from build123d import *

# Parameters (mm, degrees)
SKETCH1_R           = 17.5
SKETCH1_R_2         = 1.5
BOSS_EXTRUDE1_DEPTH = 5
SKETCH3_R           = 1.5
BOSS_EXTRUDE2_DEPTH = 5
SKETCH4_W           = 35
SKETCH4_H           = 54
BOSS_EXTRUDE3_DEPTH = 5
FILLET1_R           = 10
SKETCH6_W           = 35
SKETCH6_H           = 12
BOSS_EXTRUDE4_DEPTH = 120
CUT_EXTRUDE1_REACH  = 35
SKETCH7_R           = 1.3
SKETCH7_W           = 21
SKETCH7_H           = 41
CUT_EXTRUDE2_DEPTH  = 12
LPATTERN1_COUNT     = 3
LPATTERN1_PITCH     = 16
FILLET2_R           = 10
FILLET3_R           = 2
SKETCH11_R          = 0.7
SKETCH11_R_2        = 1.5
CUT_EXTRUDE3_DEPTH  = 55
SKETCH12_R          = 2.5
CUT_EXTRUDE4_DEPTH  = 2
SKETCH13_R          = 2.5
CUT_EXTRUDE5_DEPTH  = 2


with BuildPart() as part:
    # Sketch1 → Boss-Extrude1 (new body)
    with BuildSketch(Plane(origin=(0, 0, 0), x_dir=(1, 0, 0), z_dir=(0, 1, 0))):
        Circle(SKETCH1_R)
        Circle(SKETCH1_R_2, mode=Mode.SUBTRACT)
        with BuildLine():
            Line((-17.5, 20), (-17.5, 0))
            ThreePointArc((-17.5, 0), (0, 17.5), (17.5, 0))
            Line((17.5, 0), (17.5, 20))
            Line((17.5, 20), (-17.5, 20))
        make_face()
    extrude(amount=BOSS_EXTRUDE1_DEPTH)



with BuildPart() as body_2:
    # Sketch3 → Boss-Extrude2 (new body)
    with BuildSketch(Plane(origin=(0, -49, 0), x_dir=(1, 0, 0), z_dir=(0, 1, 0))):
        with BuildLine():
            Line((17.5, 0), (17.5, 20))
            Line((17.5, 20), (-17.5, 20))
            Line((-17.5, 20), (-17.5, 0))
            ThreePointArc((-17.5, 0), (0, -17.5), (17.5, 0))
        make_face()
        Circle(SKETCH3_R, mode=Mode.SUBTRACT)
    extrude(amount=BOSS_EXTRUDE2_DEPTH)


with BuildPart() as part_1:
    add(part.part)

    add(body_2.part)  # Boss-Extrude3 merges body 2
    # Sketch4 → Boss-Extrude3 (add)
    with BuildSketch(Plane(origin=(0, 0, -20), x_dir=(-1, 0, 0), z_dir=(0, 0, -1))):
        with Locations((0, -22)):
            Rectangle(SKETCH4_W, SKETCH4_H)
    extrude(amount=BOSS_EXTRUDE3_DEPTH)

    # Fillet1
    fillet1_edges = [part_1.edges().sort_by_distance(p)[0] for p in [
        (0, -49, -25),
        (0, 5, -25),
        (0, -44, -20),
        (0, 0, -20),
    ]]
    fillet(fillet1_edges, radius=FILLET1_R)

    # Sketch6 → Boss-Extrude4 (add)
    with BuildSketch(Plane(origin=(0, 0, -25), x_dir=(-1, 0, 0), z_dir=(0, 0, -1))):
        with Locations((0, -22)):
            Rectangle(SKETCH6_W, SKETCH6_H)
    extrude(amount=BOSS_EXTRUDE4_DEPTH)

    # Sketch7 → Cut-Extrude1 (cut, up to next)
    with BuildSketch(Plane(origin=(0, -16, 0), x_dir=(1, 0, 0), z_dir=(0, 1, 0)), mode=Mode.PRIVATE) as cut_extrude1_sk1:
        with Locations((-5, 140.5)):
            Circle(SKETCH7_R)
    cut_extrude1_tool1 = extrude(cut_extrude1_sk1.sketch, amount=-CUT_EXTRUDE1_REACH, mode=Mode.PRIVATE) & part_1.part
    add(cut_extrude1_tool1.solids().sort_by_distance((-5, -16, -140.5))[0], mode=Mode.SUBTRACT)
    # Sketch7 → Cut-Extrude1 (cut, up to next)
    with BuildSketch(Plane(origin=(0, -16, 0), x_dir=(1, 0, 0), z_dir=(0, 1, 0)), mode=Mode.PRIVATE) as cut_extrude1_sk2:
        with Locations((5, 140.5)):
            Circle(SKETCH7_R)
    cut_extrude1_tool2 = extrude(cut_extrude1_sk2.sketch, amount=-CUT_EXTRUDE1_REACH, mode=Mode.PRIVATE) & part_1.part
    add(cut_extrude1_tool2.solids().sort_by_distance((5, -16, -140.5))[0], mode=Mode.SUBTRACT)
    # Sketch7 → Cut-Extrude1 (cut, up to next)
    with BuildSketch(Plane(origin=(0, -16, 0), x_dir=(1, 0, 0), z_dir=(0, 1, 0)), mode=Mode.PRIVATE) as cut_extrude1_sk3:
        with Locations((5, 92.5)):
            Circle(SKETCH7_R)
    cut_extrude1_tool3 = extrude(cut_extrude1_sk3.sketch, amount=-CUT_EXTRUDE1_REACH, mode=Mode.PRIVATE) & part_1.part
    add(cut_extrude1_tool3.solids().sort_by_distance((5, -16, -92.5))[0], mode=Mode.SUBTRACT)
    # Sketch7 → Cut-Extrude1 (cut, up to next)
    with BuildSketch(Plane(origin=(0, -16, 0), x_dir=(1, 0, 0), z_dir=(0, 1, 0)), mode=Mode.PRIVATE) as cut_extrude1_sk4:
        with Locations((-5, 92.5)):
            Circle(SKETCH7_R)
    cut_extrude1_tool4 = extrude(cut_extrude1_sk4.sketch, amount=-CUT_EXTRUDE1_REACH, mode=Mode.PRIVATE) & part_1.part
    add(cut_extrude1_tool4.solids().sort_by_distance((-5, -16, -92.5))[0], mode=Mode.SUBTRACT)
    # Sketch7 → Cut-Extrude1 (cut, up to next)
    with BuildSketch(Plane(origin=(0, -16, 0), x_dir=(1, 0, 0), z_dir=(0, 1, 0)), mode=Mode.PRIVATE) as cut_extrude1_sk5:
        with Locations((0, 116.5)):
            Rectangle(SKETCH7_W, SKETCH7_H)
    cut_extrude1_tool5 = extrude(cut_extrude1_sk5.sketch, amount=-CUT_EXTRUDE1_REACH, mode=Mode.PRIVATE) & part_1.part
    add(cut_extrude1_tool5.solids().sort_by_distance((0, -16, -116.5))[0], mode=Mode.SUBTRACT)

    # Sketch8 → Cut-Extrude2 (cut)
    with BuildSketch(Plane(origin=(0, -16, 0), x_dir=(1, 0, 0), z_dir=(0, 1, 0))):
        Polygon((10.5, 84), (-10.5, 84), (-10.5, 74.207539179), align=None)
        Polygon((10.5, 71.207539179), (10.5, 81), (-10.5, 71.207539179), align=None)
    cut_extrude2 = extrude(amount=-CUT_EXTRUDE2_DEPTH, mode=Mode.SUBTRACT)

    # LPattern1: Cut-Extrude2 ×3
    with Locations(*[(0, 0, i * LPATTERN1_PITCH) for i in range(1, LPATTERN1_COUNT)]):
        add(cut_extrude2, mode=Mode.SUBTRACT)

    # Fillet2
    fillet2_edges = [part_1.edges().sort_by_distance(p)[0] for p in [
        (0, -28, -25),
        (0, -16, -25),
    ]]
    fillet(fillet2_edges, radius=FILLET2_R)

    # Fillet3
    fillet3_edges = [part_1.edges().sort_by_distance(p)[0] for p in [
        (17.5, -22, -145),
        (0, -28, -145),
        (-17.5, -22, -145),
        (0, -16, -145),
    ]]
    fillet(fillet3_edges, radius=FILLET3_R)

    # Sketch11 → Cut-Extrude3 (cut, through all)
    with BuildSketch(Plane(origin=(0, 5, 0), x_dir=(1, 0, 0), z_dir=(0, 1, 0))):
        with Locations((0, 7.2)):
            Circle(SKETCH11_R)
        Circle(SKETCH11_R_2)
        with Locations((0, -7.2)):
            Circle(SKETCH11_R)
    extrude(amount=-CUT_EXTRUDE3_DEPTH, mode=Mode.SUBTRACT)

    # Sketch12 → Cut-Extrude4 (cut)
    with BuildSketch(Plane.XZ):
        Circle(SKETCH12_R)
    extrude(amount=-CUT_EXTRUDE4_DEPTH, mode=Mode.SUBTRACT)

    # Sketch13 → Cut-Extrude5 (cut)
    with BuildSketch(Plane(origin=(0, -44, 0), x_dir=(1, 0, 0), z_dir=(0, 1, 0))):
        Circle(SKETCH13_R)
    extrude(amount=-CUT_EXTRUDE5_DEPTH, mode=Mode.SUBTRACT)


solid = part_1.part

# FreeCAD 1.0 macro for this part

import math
import FreeCAD as App
import Part
import Sketcher
from FreeCAD import Vector
Q = App.Units.Quantity


def edges_at(feature, points):
    """Names of the edges that pass closest to the given points."""
    edges = feature.Shape.Edges
    near = lambda p: min(range(len(edges)), key=lambda i: edges[i].distToShape(Part.Vertex(*p))[0])
    return sorted({f"Edge{near(p) + 1}" for p in points})

doc = App.newDocument("Part")
body = doc.addObject("PartDesign::Body", "Body")

# Sketch on XZ plane
sketch1 = body.newObject("Sketcher::SketchObject", "Sketch")
sketch1.AttachmentSupport = (doc.getObject("XZ_Plane"), [""])
sketch1.MapMode = "FlatFace"
sketch1.addGeometry([
    Part.ArcOfCircle(Part.Circle(Vector(0, 0, 0), Vector(0, 0, 1), 17.5), math.radians(0), math.radians(180)),  # 0
    Part.LineSegment(Vector(17.5, 0, 0), Vector(17.5, -20, 0)),  # 1
    Part.LineSegment(Vector(17.5, -20, 0), Vector(-17.5, -20, 0)),  # 2
    Part.LineSegment(Vector(-17.5, -20, 0), Vector(-17.5, 0, 0)),  # 3
    Part.Circle(Vector(0, 0, 0), Vector(0, 0, 1), 1.5),  # 4
], False)
sketch1.addConstraint([
    Sketcher.Constraint("Tangent", 0, 1, 1, 1),
    Sketcher.Constraint("Coincident", 1, 2, 2, 1),
    Sketcher.Constraint("Coincident", 2, 2, 3, 1),
    Sketcher.Constraint("Tangent", 3, 2, 0, 2),
    Sketcher.Constraint("Vertical", 1),
    Sketcher.Constraint("Horizontal", 2),
    Sketcher.Constraint("Vertical", 3),
    Sketcher.Constraint("Coincident", 0, 3, -1, 1),
    Sketcher.Constraint("Coincident", 4, 3, -1, 1),
    Sketcher.Constraint("Diameter", 4, 3.0),
    Sketcher.Constraint("Radius", 0, 17.5),
    Sketcher.Constraint("DistanceY", 1, 2, 1, 1, 20.0),
])
pad1 = body.newObject("PartDesign::Pad", "Pad")
pad1.Profile = sketch1
pad1.Length = 5
pad1.Reversed = True
body2 = doc.addObject("PartDesign::Body", "Body001")

# Sketch on XZ plane
sketch2 = body2.newObject("Sketcher::SketchObject", "Sketch001")
sketch2.AttachmentSupport = (doc.getObject("XZ_Plane001"), [""])
sketch2.MapMode = "FlatFace"
sketch2.AttachmentOffset = App.Placement(Vector(0, 0, 49), App.Rotation())
sketch2.addGeometry([
    Part.LineSegment(Vector(17.5, 0, 0), Vector(17.5, -20, 0)),  # 0
    Part.LineSegment(Vector(17.5, -20, 0), Vector(-17.5, -20, 0)),  # 1
    Part.LineSegment(Vector(-17.5, -20, 0), Vector(-17.5, 0, 0)),  # 2
    Part.ArcOfCircle(Part.Circle(Vector(0, 0, 0), Vector(0, 0, 1), 17.5), math.radians(0), math.radians(180)),  # 3
    Part.Circle(Vector(0, 0, 0), Vector(0, 0, 1), 1.5),  # 4
], False)
sketch2.addConstraint([
    Sketcher.Constraint("Coincident", 0, 2, 1, 1),
    Sketcher.Constraint("Coincident", 1, 2, 2, 1),
    Sketcher.Constraint("Tangent", 2, 2, 3, 2),
    Sketcher.Constraint("Tangent", 3, 1, 0, 1),
    Sketcher.Constraint("Vertical", 0),
    Sketcher.Constraint("Horizontal", 1),
    Sketcher.Constraint("Vertical", 2),
    Sketcher.Constraint("Coincident", 3, 3, -1, 1),
    Sketcher.Constraint("Coincident", 4, 3, -1, 1),
    Sketcher.Constraint("Diameter", 4, 3.0),
    Sketcher.Constraint("Radius", 3, 17.5),
    Sketcher.Constraint("DistanceY", 0, 2, 0, 1, 20.0),
])
pad2 = body2.newObject("PartDesign::Pad", "Pad001")
pad2.Profile = sketch2
pad2.Length = 5
pad2.Reversed = True
body.AllowCompound = True
doc.recompute()

boolean = body.newObject("PartDesign::Boolean", "Boolean")
boolean.Type = "Fuse"
boolean.addObjects([body2])

# Sketch on XY plane
sketch3 = body.newObject("Sketcher::SketchObject", "Sketch002")
sketch3.AttachmentSupport = (doc.getObject("XY_Plane"), [""])
sketch3.MapMode = "FlatFace"
sketch3.AttachmentOffset = App.Placement(Vector(0, 0, -20), App.Rotation())
sketch3.addGeometry([
    Part.LineSegment(Vector(18, 5, 0), Vector(18, -49, 0)),
    Part.LineSegment(Vector(18, -49, 0), Vector(-18, -49, 0)),
    Part.LineSegment(Vector(-18, -49, 0), Vector(-18, 5, 0)),
    Part.LineSegment(Vector(-18, 5, 0), Vector(18, 5, 0)),
], False)
sketch3.addConstraint([
    Sketcher.Constraint("Coincident", 0, 2, 1, 1),
    Sketcher.Constraint("Coincident", 1, 2, 2, 1),
    Sketcher.Constraint("Coincident", 2, 2, 3, 1),
    Sketcher.Constraint("Coincident", 3, 2, 0, 1),
    Sketcher.Constraint("Vertical", 0),
    Sketcher.Constraint("Horizontal", 1),
    Sketcher.Constraint("Vertical", 2),
    Sketcher.Constraint("Horizontal", 3),
    Sketcher.Constraint("DistanceX", 1, 2, 1, 1, 35.0),
    Sketcher.Constraint("DistanceY", 0, 2, 0, 1, 54.0),
    Sketcher.Constraint("DistanceY", 0, 2, -1, 1, 49.0),
    Sketcher.Constraint("DistanceX", -1, 1, 0, 2, 17.5),
])
pad3 = body.newObject("PartDesign::Pad", "Pad002")
pad3.Profile = sketch3
pad3.Length = 5
pad3.Reversed = True
doc.recompute()

fillet = body.newObject("PartDesign::Fillet", "Fillet")
fillet.Base = (pad3, edges_at(pad3, [
    (0, -49, -25),
    (0, 5, -25),
    (0, -44, -20),
    (0, 0, -20),
]))
fillet.Radius = 10

# Sketch on XY plane
sketch4 = body.newObject("Sketcher::SketchObject", "Sketch003")
sketch4.AttachmentSupport = (doc.getObject("XY_Plane"), [""])
sketch4.MapMode = "FlatFace"
sketch4.AttachmentOffset = App.Placement(Vector(0, 0, -25), App.Rotation())
sketch4.addGeometry([
    Part.LineSegment(Vector(18, -16, 0), Vector(18, -28, 0)),
    Part.LineSegment(Vector(18, -28, 0), Vector(-18, -28, 0)),
    Part.LineSegment(Vector(-18, -28, 0), Vector(-18, -16, 0)),
    Part.LineSegment(Vector(-18, -16, 0), Vector(18, -16, 0)),
], False)
sketch4.addConstraint([
    Sketcher.Constraint("Coincident", 0, 2, 1, 1),
    Sketcher.Constraint("Coincident", 1, 2, 2, 1),
    Sketcher.Constraint("Coincident", 2, 2, 3, 1),
    Sketcher.Constraint("Coincident", 3, 2, 0, 1),
    Sketcher.Constraint("Vertical", 0),
    Sketcher.Constraint("Horizontal", 1),
    Sketcher.Constraint("Vertical", 2),
    Sketcher.Constraint("Horizontal", 3),
    Sketcher.Constraint("DistanceX", 1, 2, 1, 1, 35.0),
    Sketcher.Constraint("DistanceY", 0, 2, 0, 1, 12.0),
    Sketcher.Constraint("DistanceY", 0, 2, -1, 1, 28.0),
    Sketcher.Constraint("DistanceX", -1, 1, 0, 2, 17.5),
])
pad4 = body.newObject("PartDesign::Pad", "Pad003")
pad4.Profile = sketch4
pad4.Length = 120
pad4.Reversed = True

# Sketch on XZ plane
sketch5 = body.newObject("Sketcher::SketchObject", "Sketch004")
sketch5.AttachmentSupport = (doc.getObject("XZ_Plane"), [""])
sketch5.MapMode = "FlatFace"
sketch5.AttachmentOffset = App.Placement(Vector(0, 0, 16), App.Rotation())
sketch5.addGeometry(Part.Circle(Vector(-5, -140.5, 0), Vector(0, 0, 1), 1.3), False)
sketch5.addConstraint([
    Sketcher.Constraint("Diameter", 0, 2.6),
    Sketcher.Constraint("DistanceX", 0, 3, -1, 1, 5.0),
    Sketcher.Constraint("DistanceY", 0, 3, -1, 1, 140.5),
])
pocket1 = body.newObject("PartDesign::Pocket", "Pocket")
pocket1.Profile = sketch5
pocket1.Type = "UpToFirst"
pocket1.Reversed = True

# Sketch on XZ plane
sketch6 = body.newObject("Sketcher::SketchObject", "Sketch005")
sketch6.AttachmentSupport = (doc.getObject("XZ_Plane"), [""])
sketch6.MapMode = "FlatFace"
sketch6.AttachmentOffset = App.Placement(Vector(0, 0, 16), App.Rotation())
sketch6.addGeometry(Part.Circle(Vector(5, -140.5, 0), Vector(0, 0, 1), 1.3), False)
sketch6.addConstraint([
    Sketcher.Constraint("Diameter", 0, 2.6),
    Sketcher.Constraint("DistanceX", -1, 1, 0, 3, 5.0),
    Sketcher.Constraint("DistanceY", 0, 3, -1, 1, 140.5),
])
pocket2 = body.newObject("PartDesign::Pocket", "Pocket001")
pocket2.Profile = sketch6
pocket2.Type = "UpToFirst"
pocket2.Reversed = True

# Sketch on XZ plane
sketch7 = body.newObject("Sketcher::SketchObject", "Sketch006")
sketch7.AttachmentSupport = (doc.getObject("XZ_Plane"), [""])
sketch7.MapMode = "FlatFace"
sketch7.AttachmentOffset = App.Placement(Vector(0, 0, 16), App.Rotation())
sketch7.addGeometry(Part.Circle(Vector(5, -92.5, 0), Vector(0, 0, 1), 1.3), False)
sketch7.addConstraint([
    Sketcher.Constraint("Diameter", 0, 2.6),
    Sketcher.Constraint("DistanceX", -1, 1, 0, 3, 5.0),
    Sketcher.Constraint("DistanceY", 0, 3, -1, 1, 92.5),
])
pocket3 = body.newObject("PartDesign::Pocket", "Pocket002")
pocket3.Profile = sketch7
pocket3.Type = "UpToFirst"
pocket3.Reversed = True

# Sketch on XZ plane
sketch8 = body.newObject("Sketcher::SketchObject", "Sketch007")
sketch8.AttachmentSupport = (doc.getObject("XZ_Plane"), [""])
sketch8.MapMode = "FlatFace"
sketch8.AttachmentOffset = App.Placement(Vector(0, 0, 16), App.Rotation())
sketch8.addGeometry(Part.Circle(Vector(-5, -92.5, 0), Vector(0, 0, 1), 1.3), False)
sketch8.addConstraint([
    Sketcher.Constraint("Diameter", 0, 2.6),
    Sketcher.Constraint("DistanceX", 0, 3, -1, 1, 5.0),
    Sketcher.Constraint("DistanceY", 0, 3, -1, 1, 92.5),
])
pocket4 = body.newObject("PartDesign::Pocket", "Pocket003")
pocket4.Profile = sketch8
pocket4.Type = "UpToFirst"
pocket4.Reversed = True

# Sketch on XZ plane
sketch9 = body.newObject("Sketcher::SketchObject", "Sketch008")
sketch9.AttachmentSupport = (doc.getObject("XZ_Plane"), [""])
sketch9.MapMode = "FlatFace"
sketch9.AttachmentOffset = App.Placement(Vector(0, 0, 16), App.Rotation())
sketch9.addGeometry([
    Part.LineSegment(Vector(-10, -137, 0), Vector(-10, -96, 0)),
    Part.LineSegment(Vector(-10, -96, 0), Vector(10, -96, 0)),
    Part.LineSegment(Vector(10, -96, 0), Vector(10, -137, 0)),
    Part.LineSegment(Vector(10, -137, 0), Vector(-10, -137, 0)),
], False)
sketch9.addConstraint([
    Sketcher.Constraint("Coincident", 0, 2, 1, 1),
    Sketcher.Constraint("Coincident", 1, 2, 2, 1),
    Sketcher.Constraint("Coincident", 2, 2, 3, 1),
    Sketcher.Constraint("Coincident", 3, 2, 0, 1),
    Sketcher.Constraint("Vertical", 0),
    Sketcher.Constraint("Horizontal", 1),
    Sketcher.Constraint("Vertical", 2),
    Sketcher.Constraint("Horizontal", 3),
    Sketcher.Constraint("DistanceX", 1, 1, 1, 2, 21.0),
    Sketcher.Constraint("DistanceY", 0, 1, 0, 2, 41.0),
    Sketcher.Constraint("DistanceY", 0, 2, -1, 1, 96.0),
    Sketcher.Constraint("DistanceX", 0, 2, -1, 1, 10.5),
])
pocket5 = body.newObject("PartDesign::Pocket", "Pocket004")
pocket5.Profile = sketch9
pocket5.Type = "UpToFirst"
pocket5.Reversed = True

# Sketch on XZ plane
sketch10 = body.newObject("Sketcher::SketchObject", "Sketch009")
sketch10.AttachmentSupport = (doc.getObject("XZ_Plane"), [""])
sketch10.MapMode = "FlatFace"
sketch10.AttachmentOffset = App.Placement(Vector(0, 0, 16), App.Rotation())
sketch10.addGeometry([
    Part.LineSegment(Vector(10, -84, 0), Vector(-10, -84, 0)),  # 0
    Part.LineSegment(Vector(-10, -84, 0), Vector(-10, -74, 0)),  # 1
    Part.LineSegment(Vector(-10, -74, 0), Vector(10, -84, 0)),  # 2
    Part.LineSegment(Vector(10, -71, 0), Vector(10, -81, 0)),  # 3
    Part.LineSegment(Vector(10, -81, 0), Vector(-10, -71, 0)),  # 4
    Part.LineSegment(Vector(-10, -71, 0), Vector(10, -71, 0)),  # 5
], False)
sketch10.addConstraint([
    Sketcher.Constraint("Coincident", 0, 2, 1, 1),
    Sketcher.Constraint("Coincident", 1, 2, 2, 1),
    Sketcher.Constraint("Coincident", 2, 2, 0, 1),
    Sketcher.Constraint("Coincident", 3, 2, 4, 1),
    Sketcher.Constraint("Coincident", 4, 2, 5, 1),
    Sketcher.Constraint("Coincident", 5, 2, 3, 1),
    Sketcher.Constraint("Horizontal", 0),
    Sketcher.Constraint("Vertical", 1),
    Sketcher.Constraint("Vertical", 3),
    Sketcher.Constraint("Horizontal", 5),
    Sketcher.Constraint("Parallel", 2, 4),
    Sketcher.Constraint("Vertical", 2, 2, 3, 2),
    Sketcher.Constraint("Vertical", 1, 2, 4, 2),
    Sketcher.Constraint("DistanceX", 0, 2, 0, 1, 21.0),
    Sketcher.Constraint("Angle", 2, Q("-25 deg")),
    Sketcher.Constraint("DistanceY", 0, 2, -1, 1, 84.0),
    Sketcher.Constraint("DistanceY", 3, 2, -1, 1, 81.0),
    Sketcher.Constraint("DistanceX", 0, 2, -1, 1, 10.5),
])
pocket6 = body.newObject("PartDesign::Pocket", "Pocket005")
pocket6.Profile = sketch10
pocket6.Length = 12
pocket6.Reversed = True
doc.recompute()

linearpattern = body.newObject("PartDesign::LinearPattern", "LinearPattern")
linearpattern.Originals = [pocket6]
linearpattern.Direction = (doc.getObject("Z_Axis"), [""])
linearpattern.Mode = "offset"
linearpattern.Offset = 16
linearpattern.Occurrences = 3
body.Tip = linearpattern
doc.recompute()

fillet2 = body.newObject("PartDesign::Fillet", "Fillet001")
fillet2.Base = (linearpattern, edges_at(linearpattern, [(0, -28, -25), (0, -16, -25)]))
fillet2.Radius = 10
doc.recompute()

fillet3 = body.newObject("PartDesign::Fillet", "Fillet002")
fillet3.Base = (fillet2, edges_at(fillet2, [
    (17.5, -22, -145),
    (0, -28, -145),
    (-17.5, -22, -145),
    (0, -16, -145),
]))
fillet3.Radius = 2

# Sketch on XZ plane
sketch11 = body.newObject("Sketcher::SketchObject", "Sketch010")
sketch11.AttachmentSupport = (doc.getObject("XZ_Plane"), [""])
sketch11.MapMode = "FlatFace"
sketch11.AttachmentOffset = App.Placement(Vector(0, 0, -5), App.Rotation())
sketch11.addGeometry([
    Part.Circle(Vector(0, -7.2, 0), Vector(0, 0, 1), 0.7),
    Part.Circle(Vector(0, 0, 0), Vector(0, 0, 1), 1.5),
    Part.Circle(Vector(0, 7.2, 0), Vector(0, 0, 1), 0.7),
], False)
sketch11.addConstraint([
    Sketcher.Constraint("Coincident", 1, 3, -1, 1),
    Sketcher.Constraint("Equal", 0, 2),
    Sketcher.Constraint("Symmetric", 0, 3, 2, 3, -1, 1),
    Sketcher.Constraint("PointOnObject", 0, 3, -2),
    Sketcher.Constraint("Diameter", 1, 3.0),
    Sketcher.Constraint("Diameter", 0, 1.4),
    Sketcher.Constraint("DistanceY", 0, 3, -1, 1, 7.2),
])
pocket7 = body.newObject("PartDesign::Pocket", "Pocket006")
pocket7.Profile = sketch11
pocket7.Type = "ThroughAll"
pocket7.Reversed = True

# Sketch on XZ plane
sketch12 = body.newObject("Sketcher::SketchObject", "Sketch011")
sketch12.AttachmentSupport = (doc.getObject("XZ_Plane"), [""])
sketch12.MapMode = "FlatFace"
sketch12.addGeometry(Part.Circle(Vector(0, 0, 0), Vector(0, 0, 1), 2.5), False)
sketch12.addConstraint([
    Sketcher.Constraint("Coincident", 0, 3, -1, 1),
    Sketcher.Constraint("Diameter", 0, 5.0),
])
pocket8 = body.newObject("PartDesign::Pocket", "Pocket007")
pocket8.Profile = sketch12
pocket8.Length = 2

# Sketch on XZ plane
sketch13 = body.newObject("Sketcher::SketchObject", "Sketch012")
sketch13.AttachmentSupport = (doc.getObject("XZ_Plane"), [""])
sketch13.MapMode = "FlatFace"
sketch13.AttachmentOffset = App.Placement(Vector(0, 0, 44), App.Rotation())
sketch13.addGeometry(Part.Circle(Vector(0, 0, 0), Vector(0, 0, 1), 2.5), False)
sketch13.addConstraint([
    Sketcher.Constraint("Coincident", 0, 3, -1, 1),
    Sketcher.Constraint("Diameter", 0, 5.0),
])
pocket9 = body.newObject("PartDesign::Pocket", "Pocket008")
pocket9.Profile = sketch13
pocket9.Length = 2
pocket9.Reversed = True

doc.recompute()
